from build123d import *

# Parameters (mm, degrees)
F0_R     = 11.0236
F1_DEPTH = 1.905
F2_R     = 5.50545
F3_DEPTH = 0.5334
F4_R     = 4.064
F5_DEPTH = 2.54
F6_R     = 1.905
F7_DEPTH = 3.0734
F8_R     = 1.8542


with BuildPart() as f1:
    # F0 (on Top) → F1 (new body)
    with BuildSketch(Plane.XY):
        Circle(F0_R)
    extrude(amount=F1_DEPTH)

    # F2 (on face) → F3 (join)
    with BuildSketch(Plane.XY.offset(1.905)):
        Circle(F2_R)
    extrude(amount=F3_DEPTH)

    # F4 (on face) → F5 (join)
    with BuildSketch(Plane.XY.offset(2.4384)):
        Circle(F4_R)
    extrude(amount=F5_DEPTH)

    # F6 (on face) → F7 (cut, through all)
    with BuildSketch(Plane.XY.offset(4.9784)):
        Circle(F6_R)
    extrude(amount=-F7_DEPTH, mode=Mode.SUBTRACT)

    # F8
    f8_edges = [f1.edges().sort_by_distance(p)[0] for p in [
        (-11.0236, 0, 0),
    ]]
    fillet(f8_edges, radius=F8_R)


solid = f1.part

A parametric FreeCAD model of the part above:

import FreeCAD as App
import Part
import Sketcher

V = App.Vector
Q = App.Units.Quantity


def edges_at(feature, points):
    """Names of the edges that pass closest to the given points."""
    edges = feature.Shape.Edges
    near = lambda p: min(range(len(edges)), key=lambda i: edges[i].distToShape(Part.Vertex(*p))[0])
    return sorted({f"Edge{near(p) + 1}" for p in points})

doc = App.newDocument("Part")
body = doc.addObject("PartDesign::Body", "Body")

sketch1 = body.newObject("Sketcher::SketchObject", "Sketch")
sketch1.AttachmentSupport = (doc.getObject("XY_Plane"), [""])
sketch1.MapMode = "FlatFace"
sketch1.addGeometry(Part.Circle(V(0, 0, 0), V(0, 0, 1), 11), False)
sketch1.addConstraint(Sketcher.Constraint("Coincident", 0, 3, -1, 1))
sketch1.addConstraint(Sketcher.Constraint("Diameter", 0, Q("0.868 in")))
pad1 = body.newObject("PartDesign::Pad", "Pad")
pad1.Profile = sketch1
pad1.Length = Q("0.075 in")

sketch2 = body.newObject("Sketcher::SketchObject", "Sketch001")
sketch2.AttachmentSupport = (doc.getObject("XY_Plane"), [""])
sketch2.MapMode = "FlatFace"
sketch2.AttachmentOffset = App.Placement(V(0, 0, 0.075 * 25.4), App.Rotation())
sketch2.addGeometry(Part.Circle(V(0, 0, 0), V(0, 0, 1), 6), False)
sketch2.addConstraint(Sketcher.Constraint("Coincident", 0, 3, -1, 1))
sketch2.addConstraint(Sketcher.Constraint("Diameter", 0, Q("0.4335 in")))
pad2 = body.newObject("PartDesign::Pad", "Pad001")
pad2.Profile = sketch2
pad2.Length = Q("0.021 in")

sketch3 = body.newObject("Sketcher::SketchObject", "Sketch002")
sketch3.AttachmentSupport = (doc.getObject("XY_Plane"), [""])
sketch3.MapMode = "FlatFace"
sketch3.AttachmentOffset = App.Placement(V(0, 0, 0.096 * 25.4), App.Rotation())
sketch3.addGeometry(Part.Circle(V(0, 0, 0), V(0, 0, 1), 4.1), False)
sketch3.addConstraint(Sketcher.Constraint("Coincident", 0, 3, -1, 1))
sketch3.addConstraint(Sketcher.Constraint("Diameter", 0, Q("0.32 in")))
pad3 = body.newObject("PartDesign::Pad", "Pad002")
pad3.Profile = sketch3
pad3.Length = Q("0.1 in")

sketch4 = body.newObject("Sketcher::SketchObject", "Sketch003")
sketch4.AttachmentSupport = (doc.getObject("XY_Plane"), [""])
sketch4.MapMode = "FlatFace"
sketch4.AttachmentOffset = App.Placement(V(0, 0, 0.196 * 25.4), App.Rotation())
sketch4.addGeometry(Part.Circle(V(0, 0, 0), V(0, 0, 1), 1.9), False)
sketch4.addConstraint(Sketcher.Constraint("Coincident", 0, 3, -1, 1))
sketch4.addConstraint(Sketcher.Constraint("Diameter", 0, Q("0.15 in")))
pocket1 = body.newObject("PartDesign::Pocket", "Pocket")
pocket1.Profile = sketch4
pocket1.Length = Q("0.121 in")
doc.recompute()

fillet = body.newObject("PartDesign::Fillet", "Fillet")
fillet.Base = (pocket1, edges_at(pocket1, [(-11.024, 0, 0)]))
fillet.Radius = Q("0.073 in")

doc.recompute()
